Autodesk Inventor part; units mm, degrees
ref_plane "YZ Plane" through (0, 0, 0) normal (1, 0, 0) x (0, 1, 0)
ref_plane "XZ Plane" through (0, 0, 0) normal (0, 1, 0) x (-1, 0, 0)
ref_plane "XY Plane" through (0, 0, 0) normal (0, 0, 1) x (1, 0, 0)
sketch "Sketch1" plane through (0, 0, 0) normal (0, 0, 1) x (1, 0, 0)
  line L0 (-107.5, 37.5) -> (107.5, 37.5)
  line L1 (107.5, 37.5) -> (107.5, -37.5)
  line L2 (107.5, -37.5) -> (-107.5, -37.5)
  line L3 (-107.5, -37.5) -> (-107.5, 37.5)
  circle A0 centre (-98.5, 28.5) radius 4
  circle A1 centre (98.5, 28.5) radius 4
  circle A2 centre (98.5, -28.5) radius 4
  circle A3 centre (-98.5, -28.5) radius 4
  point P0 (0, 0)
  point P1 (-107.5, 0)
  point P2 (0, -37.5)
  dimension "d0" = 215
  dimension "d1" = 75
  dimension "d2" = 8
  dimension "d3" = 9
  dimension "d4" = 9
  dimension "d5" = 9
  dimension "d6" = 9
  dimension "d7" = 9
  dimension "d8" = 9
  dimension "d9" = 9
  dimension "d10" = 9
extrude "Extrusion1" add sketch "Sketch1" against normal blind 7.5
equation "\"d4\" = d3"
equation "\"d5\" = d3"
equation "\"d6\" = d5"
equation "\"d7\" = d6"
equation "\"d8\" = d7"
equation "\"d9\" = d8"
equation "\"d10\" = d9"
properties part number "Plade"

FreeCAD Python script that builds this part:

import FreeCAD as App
import Part
import Sketcher
from FreeCAD import Vector

doc = App.newDocument("Part")
body = doc.addObject("PartDesign::Body", "Body")

sketch1 = body.newObject("Sketcher::SketchObject", "Sketch")
sketch1.AttachmentSupport = (doc.getObject("XY_Plane"), [""])
sketch1.MapMode = "FlatFace"
sketch1.addGeometry([
    Part.LineSegment(Vector(107.5, 37.5, 0), Vector(-107.5, 37.5, 0)),
    Part.LineSegment(Vector(-107.5, 37.5, 0), Vector(-107.5, -37.5, 0)),
    Part.LineSegment(Vector(-107.5, -37.5, 0), Vector(107.5, -37.5, 0)),
    Part.LineSegment(Vector(107.5, -37.5, 0), Vector(107.5, 37.5, 0)),
    Part.Circle(Vector(-98.5, -28.5, 0), Vector(0, 0, 1), 4),
    Part.Circle(Vector(98.5, -28.5, 0), Vector(0, 0, 1), 4),
    Part.Circle(Vector(-98.5, 28.5, 0), Vector(0, 0, 1), 4),
    Part.Circle(Vector(98.5, 28.5, 0), Vector(0, 0, 1), 4),
], False)
sketch1.addConstraint([
    Sketcher.Constraint("Coincident", 0, 2, 1, 1),
    Sketcher.Constraint("Coincident", 1, 2, 2, 1),
    Sketcher.Constraint("Coincident", 2, 2, 3, 1),
    Sketcher.Constraint("Coincident", 3, 2, 0, 1),
    Sketcher.Constraint("Horizontal", 0),
    Sketcher.Constraint("Vertical", 1),
    Sketcher.Constraint("Horizontal", 2),
    Sketcher.Constraint("Vertical", 3),
    Sketcher.Constraint("Equal", 4, 5),
    Sketcher.Constraint("Equal", 5, 6),
    Sketcher.Constraint("Equal", 6, 7),
    Sketcher.Constraint("Symmetric", 5, 3, 6, 3, -1, 1),
    Sketcher.Constraint("Symmetric", 4, 3, 7, 3, -1, 1),
    Sketcher.Constraint("Symmetric", 0, 2, 2, 2, -1, 1),
    Sketcher.Constraint("Symmetric", 4, 3, 5, 3, -2),
    Sketcher.Constraint("Diameter", 4, 8.0),
    Sketcher.Constraint("DistanceX", 0, 2, 0, 1, 215.0),
    Sketcher.Constraint("DistanceY", 1, 2, 1, 1, 75.0),
    Sketcher.Constraint("DistanceX", 0, 2, 6, 3, 9.0),
    Sketcher.Constraint("DistanceY", 6, 3, 0, 2, 9.0),
])
pad1 = body.newObject("PartDesign::Pad", "Pad")
pad1.Profile = sketch1
pad1.Length = 7.5
pad1.Reversed = True

doc.recompute()
